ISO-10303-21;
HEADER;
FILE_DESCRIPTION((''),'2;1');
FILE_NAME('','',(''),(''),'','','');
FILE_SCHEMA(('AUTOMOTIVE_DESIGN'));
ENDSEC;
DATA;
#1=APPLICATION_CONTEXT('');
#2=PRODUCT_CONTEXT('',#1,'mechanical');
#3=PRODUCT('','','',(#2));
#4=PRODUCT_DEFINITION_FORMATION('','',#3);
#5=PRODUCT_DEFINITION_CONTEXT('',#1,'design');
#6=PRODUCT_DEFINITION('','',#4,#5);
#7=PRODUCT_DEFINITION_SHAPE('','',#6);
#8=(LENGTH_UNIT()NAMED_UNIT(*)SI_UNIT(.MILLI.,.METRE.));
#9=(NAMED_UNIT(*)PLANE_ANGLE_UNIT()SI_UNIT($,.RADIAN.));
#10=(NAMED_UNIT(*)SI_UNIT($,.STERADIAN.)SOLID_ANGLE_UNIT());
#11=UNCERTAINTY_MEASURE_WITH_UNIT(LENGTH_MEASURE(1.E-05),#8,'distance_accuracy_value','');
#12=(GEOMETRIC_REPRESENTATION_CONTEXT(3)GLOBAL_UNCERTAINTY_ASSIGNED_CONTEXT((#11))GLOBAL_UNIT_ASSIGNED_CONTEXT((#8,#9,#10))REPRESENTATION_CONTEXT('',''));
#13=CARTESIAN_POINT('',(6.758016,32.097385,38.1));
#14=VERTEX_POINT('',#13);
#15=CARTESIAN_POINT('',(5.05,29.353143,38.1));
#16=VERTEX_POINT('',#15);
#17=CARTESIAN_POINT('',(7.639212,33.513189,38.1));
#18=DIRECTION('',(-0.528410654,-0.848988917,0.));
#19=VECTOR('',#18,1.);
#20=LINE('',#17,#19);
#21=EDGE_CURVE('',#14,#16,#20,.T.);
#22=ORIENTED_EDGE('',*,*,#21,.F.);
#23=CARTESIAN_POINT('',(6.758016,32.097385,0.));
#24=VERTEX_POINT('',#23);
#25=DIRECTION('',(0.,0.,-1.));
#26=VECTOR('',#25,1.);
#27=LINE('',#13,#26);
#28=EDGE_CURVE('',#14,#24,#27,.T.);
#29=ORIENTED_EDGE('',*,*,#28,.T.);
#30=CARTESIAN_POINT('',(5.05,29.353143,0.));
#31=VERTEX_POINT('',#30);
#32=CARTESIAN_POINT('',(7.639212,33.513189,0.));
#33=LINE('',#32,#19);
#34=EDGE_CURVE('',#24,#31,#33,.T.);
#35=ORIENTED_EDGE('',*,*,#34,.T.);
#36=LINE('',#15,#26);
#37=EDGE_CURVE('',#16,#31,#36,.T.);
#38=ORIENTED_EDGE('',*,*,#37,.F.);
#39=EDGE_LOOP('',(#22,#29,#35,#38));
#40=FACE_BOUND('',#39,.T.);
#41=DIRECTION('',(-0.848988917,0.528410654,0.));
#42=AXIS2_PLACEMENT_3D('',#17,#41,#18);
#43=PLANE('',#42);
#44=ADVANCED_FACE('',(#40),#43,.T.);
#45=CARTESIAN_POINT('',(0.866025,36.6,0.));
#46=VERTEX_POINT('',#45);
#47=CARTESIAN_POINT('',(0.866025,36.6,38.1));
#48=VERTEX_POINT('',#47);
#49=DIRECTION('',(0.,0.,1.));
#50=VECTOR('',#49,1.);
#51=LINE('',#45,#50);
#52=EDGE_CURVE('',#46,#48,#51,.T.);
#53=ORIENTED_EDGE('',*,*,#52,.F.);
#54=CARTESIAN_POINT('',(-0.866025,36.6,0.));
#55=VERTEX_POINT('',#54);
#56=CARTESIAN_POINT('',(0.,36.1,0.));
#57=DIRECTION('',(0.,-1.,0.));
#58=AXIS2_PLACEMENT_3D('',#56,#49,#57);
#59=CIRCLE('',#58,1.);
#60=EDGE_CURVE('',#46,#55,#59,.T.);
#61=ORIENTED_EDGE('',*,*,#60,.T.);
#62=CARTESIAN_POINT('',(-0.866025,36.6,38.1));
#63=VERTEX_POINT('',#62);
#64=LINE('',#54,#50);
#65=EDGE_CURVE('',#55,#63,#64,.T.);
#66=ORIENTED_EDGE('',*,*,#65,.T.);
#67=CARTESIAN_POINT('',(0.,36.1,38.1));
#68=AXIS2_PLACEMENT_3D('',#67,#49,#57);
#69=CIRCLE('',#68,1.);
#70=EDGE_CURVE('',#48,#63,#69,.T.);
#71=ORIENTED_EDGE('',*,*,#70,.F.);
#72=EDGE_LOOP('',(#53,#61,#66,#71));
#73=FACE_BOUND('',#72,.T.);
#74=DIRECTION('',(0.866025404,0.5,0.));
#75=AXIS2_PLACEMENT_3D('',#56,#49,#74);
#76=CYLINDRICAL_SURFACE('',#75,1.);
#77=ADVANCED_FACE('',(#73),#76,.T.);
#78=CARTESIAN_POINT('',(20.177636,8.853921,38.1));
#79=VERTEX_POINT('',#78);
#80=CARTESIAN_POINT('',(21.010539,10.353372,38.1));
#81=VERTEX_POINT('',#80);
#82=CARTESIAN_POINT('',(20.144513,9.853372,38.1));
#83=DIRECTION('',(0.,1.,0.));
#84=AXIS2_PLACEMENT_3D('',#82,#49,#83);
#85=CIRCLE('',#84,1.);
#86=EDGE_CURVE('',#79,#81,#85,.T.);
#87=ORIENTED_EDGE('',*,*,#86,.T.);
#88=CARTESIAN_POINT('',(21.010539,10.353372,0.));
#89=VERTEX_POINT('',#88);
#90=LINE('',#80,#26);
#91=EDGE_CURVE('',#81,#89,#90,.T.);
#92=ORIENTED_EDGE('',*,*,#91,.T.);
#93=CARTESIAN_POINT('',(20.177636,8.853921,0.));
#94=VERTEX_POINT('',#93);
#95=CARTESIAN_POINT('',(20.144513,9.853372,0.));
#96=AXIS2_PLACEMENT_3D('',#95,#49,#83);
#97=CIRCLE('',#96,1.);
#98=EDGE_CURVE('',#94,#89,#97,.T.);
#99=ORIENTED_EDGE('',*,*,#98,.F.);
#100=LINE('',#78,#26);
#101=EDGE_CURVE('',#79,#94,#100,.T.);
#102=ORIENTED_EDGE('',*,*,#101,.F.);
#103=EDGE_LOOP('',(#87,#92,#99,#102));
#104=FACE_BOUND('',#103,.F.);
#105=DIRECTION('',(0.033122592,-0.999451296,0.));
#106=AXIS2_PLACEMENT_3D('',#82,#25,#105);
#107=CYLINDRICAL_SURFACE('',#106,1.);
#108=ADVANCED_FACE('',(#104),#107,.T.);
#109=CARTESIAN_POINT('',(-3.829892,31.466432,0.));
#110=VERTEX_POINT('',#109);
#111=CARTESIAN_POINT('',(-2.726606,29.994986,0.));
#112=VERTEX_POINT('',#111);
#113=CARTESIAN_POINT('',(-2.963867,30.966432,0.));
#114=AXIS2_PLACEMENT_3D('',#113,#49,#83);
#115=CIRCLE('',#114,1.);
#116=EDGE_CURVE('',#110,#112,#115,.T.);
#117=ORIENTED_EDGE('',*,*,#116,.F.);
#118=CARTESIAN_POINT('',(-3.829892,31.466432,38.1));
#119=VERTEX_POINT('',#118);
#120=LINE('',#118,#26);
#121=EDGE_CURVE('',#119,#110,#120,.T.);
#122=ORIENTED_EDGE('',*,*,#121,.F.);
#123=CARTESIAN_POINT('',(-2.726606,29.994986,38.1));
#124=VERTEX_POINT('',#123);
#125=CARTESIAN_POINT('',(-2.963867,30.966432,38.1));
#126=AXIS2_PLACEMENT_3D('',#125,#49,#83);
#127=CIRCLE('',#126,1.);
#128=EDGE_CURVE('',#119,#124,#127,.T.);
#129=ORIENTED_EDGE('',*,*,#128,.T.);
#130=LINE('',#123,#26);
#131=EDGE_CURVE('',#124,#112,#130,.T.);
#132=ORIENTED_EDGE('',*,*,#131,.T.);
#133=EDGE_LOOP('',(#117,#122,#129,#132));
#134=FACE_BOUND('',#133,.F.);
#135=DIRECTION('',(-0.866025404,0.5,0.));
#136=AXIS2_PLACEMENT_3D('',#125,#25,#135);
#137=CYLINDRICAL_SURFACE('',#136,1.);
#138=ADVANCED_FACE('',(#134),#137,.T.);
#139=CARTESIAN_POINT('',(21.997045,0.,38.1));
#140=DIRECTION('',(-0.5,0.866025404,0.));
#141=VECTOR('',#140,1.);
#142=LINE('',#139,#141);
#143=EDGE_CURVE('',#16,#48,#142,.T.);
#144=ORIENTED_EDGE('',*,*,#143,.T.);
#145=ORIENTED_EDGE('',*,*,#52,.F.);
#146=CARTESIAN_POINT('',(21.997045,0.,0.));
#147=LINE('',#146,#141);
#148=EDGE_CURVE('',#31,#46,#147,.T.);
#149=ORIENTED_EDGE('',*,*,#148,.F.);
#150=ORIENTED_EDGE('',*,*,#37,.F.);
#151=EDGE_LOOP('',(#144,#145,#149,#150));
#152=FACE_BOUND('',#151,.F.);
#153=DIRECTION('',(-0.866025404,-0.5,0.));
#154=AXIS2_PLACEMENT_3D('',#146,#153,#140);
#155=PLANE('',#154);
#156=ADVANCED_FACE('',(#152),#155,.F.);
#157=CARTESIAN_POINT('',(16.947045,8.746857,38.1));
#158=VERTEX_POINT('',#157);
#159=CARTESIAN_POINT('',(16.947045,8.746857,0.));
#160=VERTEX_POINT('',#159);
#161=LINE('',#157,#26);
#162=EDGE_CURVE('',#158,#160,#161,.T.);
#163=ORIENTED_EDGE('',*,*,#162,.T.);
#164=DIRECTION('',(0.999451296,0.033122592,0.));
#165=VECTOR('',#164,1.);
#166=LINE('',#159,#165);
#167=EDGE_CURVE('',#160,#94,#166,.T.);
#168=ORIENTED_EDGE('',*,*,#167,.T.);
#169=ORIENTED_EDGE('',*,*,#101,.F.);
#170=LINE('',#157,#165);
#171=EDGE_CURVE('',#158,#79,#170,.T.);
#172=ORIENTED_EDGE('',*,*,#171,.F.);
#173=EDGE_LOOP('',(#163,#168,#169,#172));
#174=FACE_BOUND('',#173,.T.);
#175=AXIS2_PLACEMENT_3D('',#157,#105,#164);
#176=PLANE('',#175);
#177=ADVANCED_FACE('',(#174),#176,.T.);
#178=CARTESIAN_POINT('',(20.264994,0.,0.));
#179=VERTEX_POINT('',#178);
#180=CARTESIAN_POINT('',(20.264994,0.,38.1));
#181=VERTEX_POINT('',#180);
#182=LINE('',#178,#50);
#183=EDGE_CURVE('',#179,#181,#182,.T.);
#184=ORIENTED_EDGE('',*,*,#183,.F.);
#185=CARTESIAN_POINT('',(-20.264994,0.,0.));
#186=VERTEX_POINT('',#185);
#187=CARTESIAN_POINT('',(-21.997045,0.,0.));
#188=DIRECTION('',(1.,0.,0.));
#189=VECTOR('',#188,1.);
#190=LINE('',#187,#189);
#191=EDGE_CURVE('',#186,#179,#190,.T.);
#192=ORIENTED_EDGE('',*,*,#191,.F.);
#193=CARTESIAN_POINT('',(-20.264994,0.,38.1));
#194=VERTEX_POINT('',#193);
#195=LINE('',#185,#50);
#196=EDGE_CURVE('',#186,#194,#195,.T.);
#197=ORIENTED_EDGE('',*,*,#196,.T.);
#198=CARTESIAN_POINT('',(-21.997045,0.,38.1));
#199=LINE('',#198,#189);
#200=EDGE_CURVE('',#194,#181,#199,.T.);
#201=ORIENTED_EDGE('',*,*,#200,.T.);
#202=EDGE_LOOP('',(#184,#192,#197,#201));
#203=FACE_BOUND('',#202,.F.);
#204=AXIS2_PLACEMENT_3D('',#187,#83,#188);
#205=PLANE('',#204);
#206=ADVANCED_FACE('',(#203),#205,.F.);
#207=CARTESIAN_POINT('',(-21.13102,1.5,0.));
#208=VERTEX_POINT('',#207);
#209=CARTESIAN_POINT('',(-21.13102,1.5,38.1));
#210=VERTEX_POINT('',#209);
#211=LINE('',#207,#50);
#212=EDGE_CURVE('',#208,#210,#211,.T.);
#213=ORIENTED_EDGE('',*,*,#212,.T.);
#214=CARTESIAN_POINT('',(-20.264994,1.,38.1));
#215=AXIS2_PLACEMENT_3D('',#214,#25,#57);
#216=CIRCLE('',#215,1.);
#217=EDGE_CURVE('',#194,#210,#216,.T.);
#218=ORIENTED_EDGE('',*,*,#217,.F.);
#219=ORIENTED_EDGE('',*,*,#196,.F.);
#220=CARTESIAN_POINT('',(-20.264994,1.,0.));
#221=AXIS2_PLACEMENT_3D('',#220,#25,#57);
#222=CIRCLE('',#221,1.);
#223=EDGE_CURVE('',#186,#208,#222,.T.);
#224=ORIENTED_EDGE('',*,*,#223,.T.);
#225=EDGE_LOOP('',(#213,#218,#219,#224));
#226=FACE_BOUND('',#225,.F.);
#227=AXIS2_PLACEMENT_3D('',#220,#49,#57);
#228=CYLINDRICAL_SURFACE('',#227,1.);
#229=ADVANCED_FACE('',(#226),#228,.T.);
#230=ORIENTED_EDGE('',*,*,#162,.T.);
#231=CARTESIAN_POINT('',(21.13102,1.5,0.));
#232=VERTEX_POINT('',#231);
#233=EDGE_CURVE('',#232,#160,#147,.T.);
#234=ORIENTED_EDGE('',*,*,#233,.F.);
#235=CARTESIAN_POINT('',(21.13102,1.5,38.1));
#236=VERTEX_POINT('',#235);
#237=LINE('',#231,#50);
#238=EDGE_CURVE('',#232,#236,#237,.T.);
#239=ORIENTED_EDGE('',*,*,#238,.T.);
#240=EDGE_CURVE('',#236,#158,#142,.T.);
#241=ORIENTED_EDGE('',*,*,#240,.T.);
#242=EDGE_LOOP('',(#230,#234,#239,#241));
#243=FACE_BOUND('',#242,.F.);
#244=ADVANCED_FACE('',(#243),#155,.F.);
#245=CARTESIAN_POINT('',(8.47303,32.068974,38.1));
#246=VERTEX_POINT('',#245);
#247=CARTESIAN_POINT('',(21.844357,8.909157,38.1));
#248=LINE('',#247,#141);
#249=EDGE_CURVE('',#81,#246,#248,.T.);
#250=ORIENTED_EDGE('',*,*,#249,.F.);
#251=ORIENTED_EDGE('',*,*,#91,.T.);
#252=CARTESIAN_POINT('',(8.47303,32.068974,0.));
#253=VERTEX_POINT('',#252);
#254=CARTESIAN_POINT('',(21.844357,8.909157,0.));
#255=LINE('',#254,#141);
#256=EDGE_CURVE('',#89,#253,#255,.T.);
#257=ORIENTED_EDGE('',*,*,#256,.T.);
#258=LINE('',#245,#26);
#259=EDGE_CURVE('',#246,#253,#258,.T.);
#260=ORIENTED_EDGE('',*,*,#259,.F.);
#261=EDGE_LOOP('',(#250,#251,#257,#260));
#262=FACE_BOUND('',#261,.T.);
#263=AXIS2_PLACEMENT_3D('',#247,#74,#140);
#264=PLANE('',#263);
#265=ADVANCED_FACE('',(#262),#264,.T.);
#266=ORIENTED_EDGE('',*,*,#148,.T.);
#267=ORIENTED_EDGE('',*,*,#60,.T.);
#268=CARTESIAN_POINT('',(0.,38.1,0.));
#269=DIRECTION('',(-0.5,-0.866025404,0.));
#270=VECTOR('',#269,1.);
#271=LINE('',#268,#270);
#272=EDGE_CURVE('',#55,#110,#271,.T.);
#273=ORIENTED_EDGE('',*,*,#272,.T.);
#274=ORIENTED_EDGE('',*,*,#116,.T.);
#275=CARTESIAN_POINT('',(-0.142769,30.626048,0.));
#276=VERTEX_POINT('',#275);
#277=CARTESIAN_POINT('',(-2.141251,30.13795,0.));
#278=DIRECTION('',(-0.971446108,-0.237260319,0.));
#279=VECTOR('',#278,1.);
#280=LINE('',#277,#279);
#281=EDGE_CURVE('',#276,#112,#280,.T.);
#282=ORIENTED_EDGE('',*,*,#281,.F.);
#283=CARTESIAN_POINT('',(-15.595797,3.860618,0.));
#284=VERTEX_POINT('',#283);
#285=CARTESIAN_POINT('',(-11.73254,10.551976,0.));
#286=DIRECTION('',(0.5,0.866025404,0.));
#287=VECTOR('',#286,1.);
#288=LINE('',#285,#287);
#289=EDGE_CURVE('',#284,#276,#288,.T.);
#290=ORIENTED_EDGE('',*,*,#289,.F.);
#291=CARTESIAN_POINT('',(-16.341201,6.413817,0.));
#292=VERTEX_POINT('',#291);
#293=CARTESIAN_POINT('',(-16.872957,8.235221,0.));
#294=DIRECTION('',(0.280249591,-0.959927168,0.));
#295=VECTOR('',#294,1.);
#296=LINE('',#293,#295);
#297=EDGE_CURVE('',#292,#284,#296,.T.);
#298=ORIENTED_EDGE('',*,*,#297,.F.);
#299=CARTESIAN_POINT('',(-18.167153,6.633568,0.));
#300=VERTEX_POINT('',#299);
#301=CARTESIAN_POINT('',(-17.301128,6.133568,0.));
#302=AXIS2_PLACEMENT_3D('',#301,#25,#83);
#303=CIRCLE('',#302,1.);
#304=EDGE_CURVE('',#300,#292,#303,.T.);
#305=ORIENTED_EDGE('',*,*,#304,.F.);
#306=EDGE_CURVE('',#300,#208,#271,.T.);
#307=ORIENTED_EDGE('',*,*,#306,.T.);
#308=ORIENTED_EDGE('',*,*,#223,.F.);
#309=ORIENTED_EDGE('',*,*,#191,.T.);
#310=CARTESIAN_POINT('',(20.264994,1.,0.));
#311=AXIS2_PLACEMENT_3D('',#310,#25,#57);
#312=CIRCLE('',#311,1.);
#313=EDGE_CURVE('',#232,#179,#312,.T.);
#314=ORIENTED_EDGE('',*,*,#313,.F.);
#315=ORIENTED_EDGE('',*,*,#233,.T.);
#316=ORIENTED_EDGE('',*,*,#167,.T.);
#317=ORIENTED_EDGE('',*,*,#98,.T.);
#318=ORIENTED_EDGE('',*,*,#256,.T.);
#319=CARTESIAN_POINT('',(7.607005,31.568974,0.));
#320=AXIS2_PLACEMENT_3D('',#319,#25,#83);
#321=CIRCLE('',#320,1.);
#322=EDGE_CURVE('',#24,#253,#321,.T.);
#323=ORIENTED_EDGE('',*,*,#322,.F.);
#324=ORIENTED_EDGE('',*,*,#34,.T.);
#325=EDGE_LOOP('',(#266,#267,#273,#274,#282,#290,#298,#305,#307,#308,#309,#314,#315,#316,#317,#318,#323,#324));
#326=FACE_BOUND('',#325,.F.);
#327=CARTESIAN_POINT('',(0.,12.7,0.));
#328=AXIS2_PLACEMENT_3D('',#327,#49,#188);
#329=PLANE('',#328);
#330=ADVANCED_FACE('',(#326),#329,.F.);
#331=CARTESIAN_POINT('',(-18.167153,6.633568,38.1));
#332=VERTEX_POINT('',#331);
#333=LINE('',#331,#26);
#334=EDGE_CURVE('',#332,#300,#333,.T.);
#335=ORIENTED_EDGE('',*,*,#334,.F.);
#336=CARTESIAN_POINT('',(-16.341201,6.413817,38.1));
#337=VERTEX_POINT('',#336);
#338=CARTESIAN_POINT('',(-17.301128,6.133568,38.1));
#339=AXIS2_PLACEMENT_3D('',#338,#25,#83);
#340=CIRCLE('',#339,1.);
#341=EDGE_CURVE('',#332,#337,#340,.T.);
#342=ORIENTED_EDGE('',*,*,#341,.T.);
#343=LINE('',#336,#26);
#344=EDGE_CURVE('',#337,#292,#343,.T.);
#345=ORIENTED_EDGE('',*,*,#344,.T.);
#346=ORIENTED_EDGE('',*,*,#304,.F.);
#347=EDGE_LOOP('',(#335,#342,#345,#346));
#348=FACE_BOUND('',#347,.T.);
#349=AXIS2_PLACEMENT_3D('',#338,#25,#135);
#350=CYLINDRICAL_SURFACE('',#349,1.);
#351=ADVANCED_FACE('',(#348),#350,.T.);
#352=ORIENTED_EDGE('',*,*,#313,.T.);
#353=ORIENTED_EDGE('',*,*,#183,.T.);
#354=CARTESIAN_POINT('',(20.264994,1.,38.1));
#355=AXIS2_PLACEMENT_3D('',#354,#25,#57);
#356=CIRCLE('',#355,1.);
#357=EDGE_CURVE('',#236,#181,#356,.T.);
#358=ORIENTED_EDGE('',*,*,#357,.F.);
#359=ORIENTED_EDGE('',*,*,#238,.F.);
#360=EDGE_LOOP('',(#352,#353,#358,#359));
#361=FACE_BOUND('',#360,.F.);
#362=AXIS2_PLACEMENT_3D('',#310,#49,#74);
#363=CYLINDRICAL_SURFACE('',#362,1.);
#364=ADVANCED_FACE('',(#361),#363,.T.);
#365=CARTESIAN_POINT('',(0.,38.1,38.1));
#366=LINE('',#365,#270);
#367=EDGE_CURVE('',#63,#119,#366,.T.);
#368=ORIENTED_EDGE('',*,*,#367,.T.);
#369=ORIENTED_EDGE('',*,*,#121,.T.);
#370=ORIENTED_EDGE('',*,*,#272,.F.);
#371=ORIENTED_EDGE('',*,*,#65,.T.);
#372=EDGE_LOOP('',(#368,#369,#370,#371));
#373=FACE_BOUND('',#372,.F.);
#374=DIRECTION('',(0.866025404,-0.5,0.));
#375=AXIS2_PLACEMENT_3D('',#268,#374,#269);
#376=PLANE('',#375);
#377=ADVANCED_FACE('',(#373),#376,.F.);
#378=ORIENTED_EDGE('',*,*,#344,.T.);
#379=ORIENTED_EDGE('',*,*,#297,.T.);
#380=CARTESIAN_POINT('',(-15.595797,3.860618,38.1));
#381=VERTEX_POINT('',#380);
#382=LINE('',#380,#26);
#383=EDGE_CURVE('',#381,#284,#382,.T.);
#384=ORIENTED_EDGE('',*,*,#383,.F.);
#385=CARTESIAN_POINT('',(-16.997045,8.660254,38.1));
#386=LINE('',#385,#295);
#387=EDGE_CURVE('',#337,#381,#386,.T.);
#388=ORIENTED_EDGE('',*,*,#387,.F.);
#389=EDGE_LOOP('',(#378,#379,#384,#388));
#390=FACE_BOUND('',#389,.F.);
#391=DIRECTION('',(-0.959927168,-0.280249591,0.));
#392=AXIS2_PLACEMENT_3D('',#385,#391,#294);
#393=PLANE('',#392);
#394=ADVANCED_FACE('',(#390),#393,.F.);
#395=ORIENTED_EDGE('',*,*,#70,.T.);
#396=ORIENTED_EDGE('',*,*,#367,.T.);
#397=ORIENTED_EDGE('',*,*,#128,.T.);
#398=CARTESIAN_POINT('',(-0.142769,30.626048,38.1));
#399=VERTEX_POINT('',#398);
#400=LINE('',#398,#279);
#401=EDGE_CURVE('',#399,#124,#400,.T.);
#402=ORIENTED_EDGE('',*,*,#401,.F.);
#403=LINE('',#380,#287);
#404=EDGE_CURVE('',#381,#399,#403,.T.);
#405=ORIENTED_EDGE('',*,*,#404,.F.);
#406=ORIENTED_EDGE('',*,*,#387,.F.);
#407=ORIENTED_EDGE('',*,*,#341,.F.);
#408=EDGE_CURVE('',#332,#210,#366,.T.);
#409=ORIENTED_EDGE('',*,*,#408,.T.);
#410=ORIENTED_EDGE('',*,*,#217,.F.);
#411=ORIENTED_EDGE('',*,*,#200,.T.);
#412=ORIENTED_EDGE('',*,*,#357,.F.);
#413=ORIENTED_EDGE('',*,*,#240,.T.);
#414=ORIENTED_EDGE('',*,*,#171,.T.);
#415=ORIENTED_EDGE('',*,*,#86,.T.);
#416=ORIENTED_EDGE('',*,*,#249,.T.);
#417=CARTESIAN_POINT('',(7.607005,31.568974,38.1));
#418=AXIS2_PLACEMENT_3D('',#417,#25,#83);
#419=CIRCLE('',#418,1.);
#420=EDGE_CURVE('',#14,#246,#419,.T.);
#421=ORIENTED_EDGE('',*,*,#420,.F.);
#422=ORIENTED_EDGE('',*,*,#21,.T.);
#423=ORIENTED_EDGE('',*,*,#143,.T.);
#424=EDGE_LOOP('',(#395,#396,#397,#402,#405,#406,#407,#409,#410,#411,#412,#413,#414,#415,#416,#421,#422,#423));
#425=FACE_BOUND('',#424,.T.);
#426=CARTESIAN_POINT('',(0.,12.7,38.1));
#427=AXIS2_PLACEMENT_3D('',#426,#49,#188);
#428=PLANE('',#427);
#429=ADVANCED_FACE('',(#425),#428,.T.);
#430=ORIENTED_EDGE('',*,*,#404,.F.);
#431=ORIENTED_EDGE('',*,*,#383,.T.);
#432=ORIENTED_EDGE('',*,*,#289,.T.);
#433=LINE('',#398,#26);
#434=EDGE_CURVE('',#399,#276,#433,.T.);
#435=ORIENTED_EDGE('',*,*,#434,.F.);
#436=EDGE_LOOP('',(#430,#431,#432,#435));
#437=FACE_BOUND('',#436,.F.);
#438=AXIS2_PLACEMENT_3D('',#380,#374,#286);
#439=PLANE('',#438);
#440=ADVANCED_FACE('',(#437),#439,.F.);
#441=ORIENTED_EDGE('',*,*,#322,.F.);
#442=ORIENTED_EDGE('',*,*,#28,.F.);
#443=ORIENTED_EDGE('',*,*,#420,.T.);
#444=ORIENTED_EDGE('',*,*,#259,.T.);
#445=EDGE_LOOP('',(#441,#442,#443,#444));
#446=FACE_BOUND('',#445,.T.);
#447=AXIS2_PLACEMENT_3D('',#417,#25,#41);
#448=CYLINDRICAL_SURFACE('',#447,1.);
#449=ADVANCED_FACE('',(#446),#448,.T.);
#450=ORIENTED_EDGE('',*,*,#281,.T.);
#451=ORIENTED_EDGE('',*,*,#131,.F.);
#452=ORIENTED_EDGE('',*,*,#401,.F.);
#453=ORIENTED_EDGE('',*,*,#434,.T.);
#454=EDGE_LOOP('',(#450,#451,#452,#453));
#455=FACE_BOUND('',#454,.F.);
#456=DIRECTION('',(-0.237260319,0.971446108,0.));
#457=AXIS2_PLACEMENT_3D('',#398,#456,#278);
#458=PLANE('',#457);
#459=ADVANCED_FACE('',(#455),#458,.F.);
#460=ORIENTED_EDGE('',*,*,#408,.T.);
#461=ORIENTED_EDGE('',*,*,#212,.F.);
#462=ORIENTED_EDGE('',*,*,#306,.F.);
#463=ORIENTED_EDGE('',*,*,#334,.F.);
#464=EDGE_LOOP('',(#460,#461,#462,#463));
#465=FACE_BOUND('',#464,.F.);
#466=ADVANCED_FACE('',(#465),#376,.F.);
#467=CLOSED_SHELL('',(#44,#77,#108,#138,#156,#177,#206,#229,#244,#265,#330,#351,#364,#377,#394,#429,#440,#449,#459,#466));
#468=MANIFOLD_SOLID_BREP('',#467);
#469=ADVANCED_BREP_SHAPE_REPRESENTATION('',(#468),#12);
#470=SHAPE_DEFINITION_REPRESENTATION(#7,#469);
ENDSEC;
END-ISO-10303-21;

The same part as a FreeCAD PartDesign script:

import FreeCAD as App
import Part
import Sketcher

V = App.Vector
Q = App.Units.Quantity


def edges_at(feature, points):
    """Names of the edges that pass closest to the given points."""
    edges = feature.Shape.Edges
    near = lambda p: min(range(len(edges)), key=lambda i: edges[i].distToShape(Part.Vertex(*p))[0])
    return sorted({f"Edge{near(p) + 1}" for p in points})


def add_polygon(sketch, points):
    """Adds a closed chain of lines whose ends are joined by coincident constraints."""
    first, n = sketch.GeometryCount, len(points)
    for a, b in zip(points, points[1:] + points[:1]):
        sketch.addGeometry(Part.LineSegment(App.Vector(*a, 0), App.Vector(*b, 0)), False)
    for i in range(n):
        sketch.addConstraint(Sketcher.Constraint("Coincident", first + i, 2, first + (i + 1) % n, 1))

doc = App.newDocument("Part")
body = doc.addObject("PartDesign::Body", "Body")

# Sketch on XY plane
sketch1 = body.newObject("Sketcher::SketchObject", "Sketch")
sketch1.AttachmentSupport = (doc.getObject("XY_Plane"), [""])
sketch1.MapMode = "FlatFace"
add_polygon(sketch1, [(22, 0), (0, 38), (-22, 0)])  # lines 0-2
sketch1.addConstraint(Sketcher.Constraint("Horizontal", 2))
sketch1.addConstraint(Sketcher.Constraint("Symmetric", 1, 2, 2, 2, -1, 1))
sketch1.addConstraint(Sketcher.Constraint("PointOnObject", 0, 2, -2))
sketch1.addConstraint(Sketcher.Constraint("Angle", 0, Q("120 deg")))
sketch1.addConstraint(Sketcher.Constraint("DistanceY", -1, 1, 0, 2, Q("38.1 mm")))
pad1 = body.newObject("PartDesign::Pad", "Pad")
pad1.Profile = sketch1
pad1.Length = 38.1

# Sketch on XY plane
sketch2 = body.newObject("Sketcher::SketchObject", "Sketch001")
sketch2.AttachmentSupport = (doc.getObject("XY_Plane"), [""])
sketch2.MapMode = "FlatFace"
sketch2.AttachmentOffset = App.Placement(V(0, 0, 38.1), App.Rotation())
add_polygon(sketch2, [(0, 31), (-5, 29), (-17, 9), (-16, 4)])  # lines 0-3
sketch2.addConstraint(Sketcher.Constraint("Parallel", 1, 3))
sketch2.addConstraint(Sketcher.Constraint("Equal", 0, 2))
sketch2.addConstraint(Sketcher.Constraint("Angle", 1, Q("-120 deg")))
sketch2.addConstraint(Sketcher.Constraint("Distance", 0, Q("5 mm")))
sketch2.addConstraint(Sketcher.Constraint("DistanceX", 0, 2, -1, 1, Q("5 mm")))
sketch2.addConstraint(Sketcher.Constraint("DistanceY", 0, 2, 3, 2, Q("1.186302 mm")))
sketch2.addConstraint(Sketcher.Constraint("Distance", 1, Q("23.994091 mm")))
sketch2.addConstraint(Sketcher.Constraint("DistanceY", -1, 1, 2, 2, Q("3.860618 mm")))
pocket1 = body.newObject("PartDesign::Pocket", "Pocket")
pocket1.Profile = sketch2
pocket1.Type = "ThroughAll"
doc.recompute()

fillet = body.newObject("PartDesign::Fillet", "Fillet")
fillet.Base = (pocket1, edges_at(pocket1, [(-5, 29.44, 19.05), (-16.997, 8.66, 19.05)]))
fillet.Radius = 1

# Sketch on XY plane
sketch3 = body.newObject("Sketcher::SketchObject", "Sketch002")
sketch3.AttachmentSupport = (doc.getObject("XY_Plane"), [""])
sketch3.MapMode = "FlatFace"
sketch3.AttachmentOffset = App.Placement(V(0, 0, 38.1), App.Rotation())
add_polygon(sketch3, [(7.6, 33.5), (5, 29.4), (16.9, 8.7), (21.8, 8.9)])  # lines 0-3
sketch3.addConstraint(Sketcher.Constraint("Parallel", 1, 3))
sketch3.addConstraint(Sketcher.Constraint("Equal", 0, 2))
sketch3.addConstraint(Sketcher.Constraint("Angle", 1, Q("-60 deg")))
sketch3.addConstraint(Sketcher.Constraint("Distance", 0, Q("4.9 mm")))
sketch3.addConstraint(Sketcher.Constraint("DistanceX", -1, 1, 0, 2, Q("5.05 mm")))
sketch3.addConstraint(Sketcher.Constraint("DistanceY", 1, 2, 2, 2, Q("0.162301 mm")))
sketch3.addConstraint(Sketcher.Constraint("Distance", 1, Q("23.794091 mm")))
sketch3.addConstraint(Sketcher.Constraint("DistanceY", -1, 1, 3, 2, Q("33.513189 mm")))
pad2 = body.newObject("PartDesign::Pad", "Pad001")
pad2.Profile = sketch3
pad2.Length = 38.1
pad2.Reversed = True
doc.recompute()

fillet2 = body.newObject("PartDesign::Fillet", "Fillet001")
fillet2.Base = (pad2, edges_at(pad2, [(7.639, 33.513, 19.05), (21.844, 8.909, 19.05)]))
fillet2.Radius = 1
doc.recompute()

fillet3 = body.newObject("PartDesign::Fillet", "Fillet002")
fillet3.Base = (fillet2, edges_at(fillet2, [(0, 38.1, 19.05), (-21.997, 0, 19.05), (21.997, 0, 19.05)]))
fillet3.Radius = 1

doc.recompute()
